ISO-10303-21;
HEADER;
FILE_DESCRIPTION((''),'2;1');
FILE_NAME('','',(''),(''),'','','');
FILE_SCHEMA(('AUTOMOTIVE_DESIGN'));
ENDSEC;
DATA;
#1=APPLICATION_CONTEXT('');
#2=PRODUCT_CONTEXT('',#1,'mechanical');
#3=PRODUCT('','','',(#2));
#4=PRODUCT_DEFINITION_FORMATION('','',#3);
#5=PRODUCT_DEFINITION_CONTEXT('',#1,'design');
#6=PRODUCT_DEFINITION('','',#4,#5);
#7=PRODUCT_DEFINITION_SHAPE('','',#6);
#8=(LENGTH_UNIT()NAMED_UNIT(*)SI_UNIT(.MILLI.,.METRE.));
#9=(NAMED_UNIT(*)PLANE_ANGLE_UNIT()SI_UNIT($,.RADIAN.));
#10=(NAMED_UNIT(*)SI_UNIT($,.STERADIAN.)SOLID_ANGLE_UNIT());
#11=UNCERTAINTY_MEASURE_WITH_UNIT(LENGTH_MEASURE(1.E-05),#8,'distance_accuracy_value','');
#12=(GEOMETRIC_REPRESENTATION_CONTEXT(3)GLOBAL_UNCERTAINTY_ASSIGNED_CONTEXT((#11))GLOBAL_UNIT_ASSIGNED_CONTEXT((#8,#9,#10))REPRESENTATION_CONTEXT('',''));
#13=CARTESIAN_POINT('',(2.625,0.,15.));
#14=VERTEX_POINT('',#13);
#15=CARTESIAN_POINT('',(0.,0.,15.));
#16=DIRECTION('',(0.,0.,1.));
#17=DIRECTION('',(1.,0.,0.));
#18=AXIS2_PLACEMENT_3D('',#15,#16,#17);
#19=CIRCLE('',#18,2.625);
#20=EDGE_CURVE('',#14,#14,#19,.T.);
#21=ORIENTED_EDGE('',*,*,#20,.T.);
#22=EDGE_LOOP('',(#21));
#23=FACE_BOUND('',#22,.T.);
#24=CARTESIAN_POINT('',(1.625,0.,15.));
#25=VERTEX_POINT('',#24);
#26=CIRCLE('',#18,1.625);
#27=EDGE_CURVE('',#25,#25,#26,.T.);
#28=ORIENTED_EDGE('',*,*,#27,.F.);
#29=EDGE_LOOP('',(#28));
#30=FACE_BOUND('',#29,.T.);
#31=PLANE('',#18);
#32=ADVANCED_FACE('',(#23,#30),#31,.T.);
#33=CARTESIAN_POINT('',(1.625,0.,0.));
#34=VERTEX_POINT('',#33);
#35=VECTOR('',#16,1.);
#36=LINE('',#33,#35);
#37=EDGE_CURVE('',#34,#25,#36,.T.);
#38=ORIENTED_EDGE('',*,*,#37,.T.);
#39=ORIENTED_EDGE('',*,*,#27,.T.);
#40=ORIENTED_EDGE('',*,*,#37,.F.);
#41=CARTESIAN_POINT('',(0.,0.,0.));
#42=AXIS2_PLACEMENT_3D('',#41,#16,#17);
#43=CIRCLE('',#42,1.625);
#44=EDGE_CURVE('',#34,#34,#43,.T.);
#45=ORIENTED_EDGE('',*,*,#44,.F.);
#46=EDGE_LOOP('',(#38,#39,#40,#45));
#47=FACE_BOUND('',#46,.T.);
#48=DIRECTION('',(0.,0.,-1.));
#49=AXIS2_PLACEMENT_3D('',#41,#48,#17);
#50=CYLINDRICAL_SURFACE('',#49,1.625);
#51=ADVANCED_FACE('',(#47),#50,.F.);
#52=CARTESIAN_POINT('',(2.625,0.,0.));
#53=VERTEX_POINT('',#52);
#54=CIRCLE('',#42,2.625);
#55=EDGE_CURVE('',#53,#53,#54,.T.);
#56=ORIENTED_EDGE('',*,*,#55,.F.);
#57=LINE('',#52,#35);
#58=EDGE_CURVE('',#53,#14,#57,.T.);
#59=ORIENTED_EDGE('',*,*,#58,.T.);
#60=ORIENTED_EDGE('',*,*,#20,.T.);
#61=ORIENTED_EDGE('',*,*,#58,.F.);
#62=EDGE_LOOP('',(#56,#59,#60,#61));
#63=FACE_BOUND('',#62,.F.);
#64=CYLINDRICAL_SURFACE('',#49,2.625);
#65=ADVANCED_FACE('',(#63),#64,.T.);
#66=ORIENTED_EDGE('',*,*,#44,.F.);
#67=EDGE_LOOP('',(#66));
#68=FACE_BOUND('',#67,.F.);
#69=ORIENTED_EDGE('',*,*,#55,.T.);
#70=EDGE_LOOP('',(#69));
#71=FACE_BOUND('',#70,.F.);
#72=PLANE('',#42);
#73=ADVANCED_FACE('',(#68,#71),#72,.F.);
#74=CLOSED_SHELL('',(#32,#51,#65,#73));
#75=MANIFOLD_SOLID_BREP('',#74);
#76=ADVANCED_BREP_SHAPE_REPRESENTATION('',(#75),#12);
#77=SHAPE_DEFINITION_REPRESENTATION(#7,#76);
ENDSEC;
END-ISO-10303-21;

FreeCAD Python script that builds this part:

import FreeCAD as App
import Part
import Sketcher

V = App.Vector

doc = App.newDocument("Part")
body = doc.addObject("PartDesign::Body", "Body")

# Sketch on XY plane
sketch1 = body.newObject("Sketcher::SketchObject", "Sketch")
sketch1.AttachmentSupport = (doc.getObject("XY_Plane"), [""])
sketch1.MapMode = "FlatFace"
sketch1.addGeometry([
    Part.Circle(V(0, 0, 0), V(0, 0, 1), 2.6),
    Part.Circle(V(0, 0, 0), V(0, 0, 1), 1.6),
], False)
sketch1.addConstraint([
    Sketcher.Constraint("Coincident", 0, 3, -1, 1),
    Sketcher.Constraint("Coincident", 1, 3, -1, 1),
    Sketcher.Constraint("Diameter", 1, 3.25),
    Sketcher.Constraint("Diameter", 0, 5.25),
])
pad1 = body.newObject("PartDesign::Pad", "Pad")
pad1.Profile = sketch1
pad1.Length = 15

doc.recompute()
